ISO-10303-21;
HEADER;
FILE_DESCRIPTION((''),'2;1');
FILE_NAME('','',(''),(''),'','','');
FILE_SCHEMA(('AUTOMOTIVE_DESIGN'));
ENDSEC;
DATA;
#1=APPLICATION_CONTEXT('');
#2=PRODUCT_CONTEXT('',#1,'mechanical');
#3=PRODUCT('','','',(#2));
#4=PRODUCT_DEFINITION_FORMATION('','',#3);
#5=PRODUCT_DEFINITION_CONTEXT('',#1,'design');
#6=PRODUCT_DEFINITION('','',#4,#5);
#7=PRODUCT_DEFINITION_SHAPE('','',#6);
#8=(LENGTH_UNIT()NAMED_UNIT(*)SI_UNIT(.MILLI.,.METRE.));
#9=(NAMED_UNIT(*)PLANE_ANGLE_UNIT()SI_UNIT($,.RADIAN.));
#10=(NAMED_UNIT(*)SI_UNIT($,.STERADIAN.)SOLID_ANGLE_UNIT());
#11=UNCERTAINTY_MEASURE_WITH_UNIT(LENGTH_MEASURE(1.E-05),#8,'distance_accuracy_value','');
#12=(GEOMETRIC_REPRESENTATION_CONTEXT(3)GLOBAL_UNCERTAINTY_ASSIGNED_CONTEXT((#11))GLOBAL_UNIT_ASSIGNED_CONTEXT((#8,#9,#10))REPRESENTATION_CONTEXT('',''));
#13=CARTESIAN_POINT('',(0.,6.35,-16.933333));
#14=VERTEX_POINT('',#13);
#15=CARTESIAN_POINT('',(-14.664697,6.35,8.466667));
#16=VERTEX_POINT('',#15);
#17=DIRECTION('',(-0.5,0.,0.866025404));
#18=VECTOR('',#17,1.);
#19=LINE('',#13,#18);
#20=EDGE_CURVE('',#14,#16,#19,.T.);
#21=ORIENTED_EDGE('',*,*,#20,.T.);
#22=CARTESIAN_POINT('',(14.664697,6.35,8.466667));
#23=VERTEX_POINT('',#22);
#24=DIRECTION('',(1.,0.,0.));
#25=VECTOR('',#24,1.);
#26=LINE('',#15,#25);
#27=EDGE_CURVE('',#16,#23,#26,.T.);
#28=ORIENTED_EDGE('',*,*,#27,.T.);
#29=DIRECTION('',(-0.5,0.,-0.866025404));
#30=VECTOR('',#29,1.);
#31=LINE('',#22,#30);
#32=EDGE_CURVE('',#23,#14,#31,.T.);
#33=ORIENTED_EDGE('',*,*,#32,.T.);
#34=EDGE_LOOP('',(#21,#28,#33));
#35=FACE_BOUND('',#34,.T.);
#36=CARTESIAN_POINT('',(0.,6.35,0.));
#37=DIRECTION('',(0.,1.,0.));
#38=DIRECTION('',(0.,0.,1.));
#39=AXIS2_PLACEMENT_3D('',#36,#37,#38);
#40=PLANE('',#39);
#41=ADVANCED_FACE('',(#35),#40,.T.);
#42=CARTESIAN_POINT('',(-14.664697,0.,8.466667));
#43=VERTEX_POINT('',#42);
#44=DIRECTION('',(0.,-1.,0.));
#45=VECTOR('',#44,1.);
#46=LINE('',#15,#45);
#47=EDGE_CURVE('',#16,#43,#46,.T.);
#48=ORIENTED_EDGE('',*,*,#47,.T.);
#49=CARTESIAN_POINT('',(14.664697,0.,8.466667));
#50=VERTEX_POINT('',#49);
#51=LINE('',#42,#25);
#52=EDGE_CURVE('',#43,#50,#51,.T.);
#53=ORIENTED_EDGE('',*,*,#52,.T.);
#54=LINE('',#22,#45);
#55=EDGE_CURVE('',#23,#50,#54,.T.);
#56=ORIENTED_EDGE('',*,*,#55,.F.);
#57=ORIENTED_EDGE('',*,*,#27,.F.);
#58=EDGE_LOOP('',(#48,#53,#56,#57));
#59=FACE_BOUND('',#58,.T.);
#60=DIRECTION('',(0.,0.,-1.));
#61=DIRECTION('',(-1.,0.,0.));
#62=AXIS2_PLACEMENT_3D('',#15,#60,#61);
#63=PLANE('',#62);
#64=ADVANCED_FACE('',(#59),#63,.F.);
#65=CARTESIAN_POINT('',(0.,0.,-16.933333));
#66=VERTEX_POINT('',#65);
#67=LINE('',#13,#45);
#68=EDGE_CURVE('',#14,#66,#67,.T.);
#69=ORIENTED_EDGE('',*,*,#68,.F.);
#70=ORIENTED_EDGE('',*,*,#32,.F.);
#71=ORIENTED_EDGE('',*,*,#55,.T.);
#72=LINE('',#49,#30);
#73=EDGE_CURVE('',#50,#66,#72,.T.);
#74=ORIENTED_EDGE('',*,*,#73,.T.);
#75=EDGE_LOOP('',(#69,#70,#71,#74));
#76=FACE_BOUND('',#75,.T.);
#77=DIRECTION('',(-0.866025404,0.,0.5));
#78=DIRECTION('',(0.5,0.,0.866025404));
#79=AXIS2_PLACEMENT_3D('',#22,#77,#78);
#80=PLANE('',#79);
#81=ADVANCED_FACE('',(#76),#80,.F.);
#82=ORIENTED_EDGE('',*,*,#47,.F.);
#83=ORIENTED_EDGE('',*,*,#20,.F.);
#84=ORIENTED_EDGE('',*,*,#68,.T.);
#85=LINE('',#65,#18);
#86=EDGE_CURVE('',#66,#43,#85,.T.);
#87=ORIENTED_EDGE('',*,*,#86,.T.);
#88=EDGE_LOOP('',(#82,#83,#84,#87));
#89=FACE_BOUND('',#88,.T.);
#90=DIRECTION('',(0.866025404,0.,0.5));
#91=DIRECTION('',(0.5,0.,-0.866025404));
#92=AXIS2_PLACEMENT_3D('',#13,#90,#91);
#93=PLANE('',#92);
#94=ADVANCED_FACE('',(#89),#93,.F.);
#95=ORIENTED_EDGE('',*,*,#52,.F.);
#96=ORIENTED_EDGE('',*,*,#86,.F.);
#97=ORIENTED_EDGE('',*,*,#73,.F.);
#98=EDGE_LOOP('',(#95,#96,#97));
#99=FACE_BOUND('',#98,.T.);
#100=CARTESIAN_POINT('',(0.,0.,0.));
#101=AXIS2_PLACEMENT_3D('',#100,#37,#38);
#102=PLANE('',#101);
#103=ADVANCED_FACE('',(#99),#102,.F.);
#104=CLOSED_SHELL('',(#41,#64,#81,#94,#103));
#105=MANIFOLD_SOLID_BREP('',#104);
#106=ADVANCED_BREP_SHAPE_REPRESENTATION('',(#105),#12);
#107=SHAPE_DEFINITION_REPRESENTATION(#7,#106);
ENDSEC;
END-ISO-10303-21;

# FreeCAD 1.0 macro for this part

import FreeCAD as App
import Part
import Sketcher

V = App.Vector
Q = App.Units.Quantity


def add_polygon(sketch, points):
    """Adds a closed chain of lines whose ends are joined by coincident constraints."""
    first, n = sketch.GeometryCount, len(points)
    for a, b in zip(points, points[1:] + points[:1]):
        sketch.addGeometry(Part.LineSegment(App.Vector(*a, 0), App.Vector(*b, 0)), False)
    for i in range(n):
        sketch.addConstraint(Sketcher.Constraint("Coincident", first + i, 2, first + (i + 1) % n, 1))

doc = App.newDocument("Part")
params = doc.addObject("Spreadsheet::Sheet", "Params")
for row, (alias, value) in enumerate([
    ("pad1_length", "0.25 in"),
], start=1):
    params.set(f"A{row}", alias)
    params.set(f"B{row}", "=" + value)
    params.setAlias(f"B{row}", alias)

body = doc.addObject("PartDesign::Body", "Body")

# Sketch on XZ plane
sketch1 = body.newObject("Sketcher::SketchObject", "Sketch")
sketch1.AttachmentSupport = (doc.getObject("XZ_Plane"), [""])
sketch1.MapMode = "FlatFace"
add_polygon(sketch1, [(0, -17), (-15, 8), (15, 8)])  # lines 0-2
sketch1.addConstraint([
    Sketcher.Constraint("Horizontal", 1),
    Sketcher.Constraint("PointOnObject", 2, 2, -2),
    Sketcher.Constraint("Equal", 0, 2),
    Sketcher.Constraint("Angle", 0, Q("120 deg")),
    Sketcher.Constraint("DistanceY", 2, 2, 0, 2, Q("1 in")),
    Sketcher.Constraint("DistanceY", -1, 1, 0, 2, Q("8.466667 mm")),
])
pad1 = body.newObject("PartDesign::Pad", "Pad")
pad1.Profile = sketch1
pad1.setExpression("Length", "Params.pad1_length")
pad1.Reversed = True

doc.recompute()
